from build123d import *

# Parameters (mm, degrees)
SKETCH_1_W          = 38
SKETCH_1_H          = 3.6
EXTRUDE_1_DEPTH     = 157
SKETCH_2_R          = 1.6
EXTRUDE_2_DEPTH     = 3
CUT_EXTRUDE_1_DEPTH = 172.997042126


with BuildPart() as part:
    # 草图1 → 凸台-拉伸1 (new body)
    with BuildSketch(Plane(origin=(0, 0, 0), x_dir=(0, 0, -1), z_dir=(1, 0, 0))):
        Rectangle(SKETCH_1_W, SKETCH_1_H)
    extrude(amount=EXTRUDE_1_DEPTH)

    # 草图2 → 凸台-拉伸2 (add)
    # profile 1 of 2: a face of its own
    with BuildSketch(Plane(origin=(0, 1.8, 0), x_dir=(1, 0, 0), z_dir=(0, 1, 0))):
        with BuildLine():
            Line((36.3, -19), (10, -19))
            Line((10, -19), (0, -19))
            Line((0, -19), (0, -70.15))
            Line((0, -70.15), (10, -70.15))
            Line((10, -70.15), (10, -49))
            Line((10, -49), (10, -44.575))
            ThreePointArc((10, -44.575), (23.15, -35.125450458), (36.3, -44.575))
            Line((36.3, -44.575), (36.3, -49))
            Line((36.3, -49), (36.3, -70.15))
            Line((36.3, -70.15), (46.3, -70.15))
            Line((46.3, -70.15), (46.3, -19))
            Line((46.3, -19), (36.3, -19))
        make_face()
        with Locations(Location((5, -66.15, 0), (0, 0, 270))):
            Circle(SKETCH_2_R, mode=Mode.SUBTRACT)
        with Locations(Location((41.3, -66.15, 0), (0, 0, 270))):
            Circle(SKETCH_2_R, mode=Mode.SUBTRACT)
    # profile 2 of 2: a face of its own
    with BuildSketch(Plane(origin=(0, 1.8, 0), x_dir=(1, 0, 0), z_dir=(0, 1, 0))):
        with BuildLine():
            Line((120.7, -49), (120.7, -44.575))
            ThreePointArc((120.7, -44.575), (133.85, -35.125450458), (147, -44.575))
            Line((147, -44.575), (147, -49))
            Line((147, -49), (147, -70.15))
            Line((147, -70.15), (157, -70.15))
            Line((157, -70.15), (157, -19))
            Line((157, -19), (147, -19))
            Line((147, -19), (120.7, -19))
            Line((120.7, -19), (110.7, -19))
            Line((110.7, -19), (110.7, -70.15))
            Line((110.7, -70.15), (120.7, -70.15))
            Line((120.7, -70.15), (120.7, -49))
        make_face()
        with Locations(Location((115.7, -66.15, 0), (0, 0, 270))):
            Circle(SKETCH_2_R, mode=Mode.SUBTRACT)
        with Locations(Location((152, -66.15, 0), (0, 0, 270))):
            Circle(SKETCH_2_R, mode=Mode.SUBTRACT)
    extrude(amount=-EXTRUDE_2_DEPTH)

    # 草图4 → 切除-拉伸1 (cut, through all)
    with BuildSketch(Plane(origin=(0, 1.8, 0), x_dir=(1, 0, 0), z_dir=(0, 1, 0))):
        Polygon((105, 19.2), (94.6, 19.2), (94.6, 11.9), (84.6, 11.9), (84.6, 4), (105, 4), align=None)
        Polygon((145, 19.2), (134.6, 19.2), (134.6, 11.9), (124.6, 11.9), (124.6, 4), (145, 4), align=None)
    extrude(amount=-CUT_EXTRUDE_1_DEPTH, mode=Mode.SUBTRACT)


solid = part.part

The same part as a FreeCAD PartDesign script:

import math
import FreeCAD as App
import Part
import Sketcher

V = App.Vector


def add_polygon(sketch, points):
    """Adds a closed chain of lines whose ends are joined by coincident constraints."""
    first, n = sketch.GeometryCount, len(points)
    for a, b in zip(points, points[1:] + points[:1]):
        sketch.addGeometry(Part.LineSegment(App.Vector(*a, 0), App.Vector(*b, 0)), False)
    for i in range(n):
        sketch.addConstraint(Sketcher.Constraint("Coincident", first + i, 2, first + (i + 1) % n, 1))

doc = App.newDocument("Part")
params = doc.addObject("Spreadsheet::Sheet", "Params")
for row, (alias, value) in enumerate([
    ("sketch1_height", "38 mm"),
    ("sketch1_width", "3.6 mm"),
    ("pad1_length", "157 mm"),
    ("sketch2_diameter", "3.2 mm"),
    ("sketch2_width", "10 mm"),
    ("sketch2_width2", "46.3 mm"),
    ("sketch2_height", "51.15 mm"),
    ("pad2_length", "3 mm"),
    ("sketch3_width", "10 mm"),
    ("sketch3_width2", "10.4 mm"),
    ("sketch3_height", "7.3 mm"),
    ("sketch3_height2", "7.9 mm"),
], start=1):
    params.set(f"A{row}", alias)
    params.set(f"B{row}", "=" + value)
    params.setAlias(f"B{row}", alias)

body = doc.addObject("PartDesign::Body", "Body")

sketch1 = body.newObject("Sketcher::SketchObject", "Sketch")
sketch1.AttachmentSupport = (doc.getObject("YZ_Plane"), [""])
sketch1.MapMode = "FlatFace"
add_polygon(sketch1, [(1.8, 19), (-1.8, 19), (-1.8, -19), (1.8, -19)])
sketch1.addConstraint([
    Sketcher.Constraint("Horizontal", 0),
    Sketcher.Constraint("Vertical", 1),
    Sketcher.Constraint("Horizontal", 2),
    Sketcher.Constraint("Vertical", 3),
    Sketcher.Constraint("Symmetric", 0, 2, 2, 2, -1, 1),
    Sketcher.Constraint("DistanceY", 1, 2, 1, 1, 38.0),
    Sketcher.Constraint("DistanceX", 0, 2, 0, 1, 3.6),
])
sketch1.setExpression("Constraints[9]", "Params.sketch1_height")
sketch1.setExpression("Constraints[10]", "Params.sketch1_width")
pad1 = body.newObject("PartDesign::Pad", "Pad")
pad1.Profile = sketch1
pad1.setExpression("Length", "Params.pad1_length")

sketch2 = body.newObject("Sketcher::SketchObject", "Sketch001")
sketch2.AttachmentSupport = (doc.getObject("XZ_Plane"), [""])
sketch2.MapMode = "FlatFace"
sketch2.AttachmentOffset = App.Placement(V(0, 0, -1.8), App.Rotation())
sketch2.addGeometry([
    Part.LineSegment(V(0, 19, 0), V(0, 70.2, 0)),
    Part.LineSegment(V(0, 70.2, 0), V(10, 70.2, 0)),
    Part.LineSegment(V(10, 70.2, 0), V(10, 44.6, 0)),
    Part.ArcOfCircle(Part.Circle(V(23.1, 49, 0), V(0, 0, 1), 13.9), math.radians(-161), math.radians(-19)),
    Part.LineSegment(V(36.3, 44.6, 0), V(36.3, 70.2, 0)),
    Part.LineSegment(V(36.3, 70.2, 0), V(46.3, 70.2, 0)),
    Part.LineSegment(V(46.3, 70.2, 0), V(46.3, 19, 0)),
    Part.LineSegment(V(46.3, 19, 0), V(0, 19, 0)),
    Part.Circle(V(5, 66.2, 0), V(0, 0, 1), 1.6),
    Part.Circle(V(41.3, 66.2, 0), V(0, 0, 1), 1.6),
    Part.ArcOfCircle(Part.Circle(V(133.8, 49, 0), V(0, 0, 1), 13.9), math.radians(-161), math.radians(-19)),
    Part.LineSegment(V(147, 44.6, 0), V(147, 70.2, 0)),
    Part.LineSegment(V(147, 70.2, 0), V(157, 70.2, 0)),
    Part.LineSegment(V(157, 70.2, 0), V(157, 19, 0)),
    Part.LineSegment(V(157, 19, 0), V(110.7, 19, 0)),
    Part.LineSegment(V(110.7, 19, 0), V(110.7, 70.2, 0)),
    Part.LineSegment(V(110.7, 70.2, 0), V(120.7, 70.2, 0)),
    Part.LineSegment(V(120.7, 70.2, 0), V(120.7, 44.6, 0)),
    Part.Circle(V(115.7, 66.2, 0), V(0, 0, 1), 1.6),
    Part.Circle(V(152, 66.2, 0), V(0, 0, 1), 1.6),
], False)
sketch2.addConstraint([
    Sketcher.Constraint("Coincident", 0, 2, 1, 1),
    Sketcher.Constraint("Coincident", 1, 2, 2, 1),
    Sketcher.Constraint("Coincident", 2, 2, 3, 1),
    Sketcher.Constraint("Coincident", 3, 2, 4, 1),
    Sketcher.Constraint("Coincident", 4, 2, 5, 1),
    Sketcher.Constraint("Coincident", 5, 2, 6, 1),
    Sketcher.Constraint("Coincident", 6, 2, 7, 1),
    Sketcher.Constraint("Coincident", 7, 2, 0, 1),
    Sketcher.Constraint("Coincident", 10, 2, 11, 1),
    Sketcher.Constraint("Coincident", 11, 2, 12, 1),
    Sketcher.Constraint("Coincident", 12, 2, 13, 1),
    Sketcher.Constraint("Coincident", 13, 2, 14, 1),
    Sketcher.Constraint("Coincident", 14, 2, 15, 1),
    Sketcher.Constraint("Coincident", 15, 2, 16, 1),
    Sketcher.Constraint("Coincident", 16, 2, 17, 1),
    Sketcher.Constraint("Coincident", 17, 2, 10, 1),
    Sketcher.Constraint("Vertical", 0),
    Sketcher.Constraint("Horizontal", 1),
    Sketcher.Constraint("Vertical", 2),
    Sketcher.Constraint("Vertical", 4),
    Sketcher.Constraint("Horizontal", 5),
    Sketcher.Constraint("Vertical", 6),
    Sketcher.Constraint("Horizontal", 7),
    Sketcher.Constraint("Vertical", 11),
    Sketcher.Constraint("Horizontal", 12),
    Sketcher.Constraint("Vertical", 13),
    Sketcher.Constraint("Horizontal", 14),
    Sketcher.Constraint("Vertical", 15),
    Sketcher.Constraint("Horizontal", 16),
    Sketcher.Constraint("Vertical", 17),
    Sketcher.Constraint("Equal", 8, 9),
    Sketcher.Constraint("Equal", 3, 10),
    Sketcher.Constraint("Equal", 9, 18),
    Sketcher.Constraint("Equal", 18, 19),
    Sketcher.Constraint("PointOnObject", 0, 2, -2),
    Sketcher.Constraint("Horizontal", 8, 3, 9, 3),
    Sketcher.Constraint("Horizontal", 3, 3, 10, 3),
    Sketcher.Constraint("Horizontal", 9, 3, 18, 3),
    Sketcher.Constraint("Horizontal", 18, 3, 19, 3),
    Sketcher.Constraint("Horizontal", 2, 2, 3, 2),
    Sketcher.Constraint("Horizontal", 1, 2, 4, 2),
    Sketcher.Constraint("Horizontal", 3, 2, 10, 2),
    Sketcher.Constraint("Horizontal", 5, 2, 11, 2),
    Sketcher.Constraint("Horizontal", 7, 2, 13, 2),
    Sketcher.Constraint("Horizontal", 12, 2, 15, 2),
    Sketcher.Constraint("Horizontal", 10, 2, 17, 2),
    Sketcher.Constraint("Equal", 1, 5),
    Sketcher.Constraint("Equal", 5, 12),
    Sketcher.Constraint("Equal", 7, 14),
    Sketcher.Constraint("Diameter", 8, 3.2),
    Sketcher.Constraint("DistanceX", 1, 1, 1, 2, 10.0),
    Sketcher.Constraint("DistanceX", 7, 2, 7, 1, 46.3),
    Sketcher.Constraint("DistanceY", -1, 1, 3, 3, 49.0),
    Sketcher.Constraint("DistanceX", -1, 1, 8, 3, 5.0),
    Sketcher.Constraint("DistanceX", -1, 1, 19, 3, 152.0),
    Sketcher.Constraint("DistanceY", -1, 1, 6, 2, 19.0),
    Sketcher.Constraint("DistanceX", -1, 1, 10, 2, 147.0),
    Sketcher.Constraint("DistanceY", 8, 3, 0, 2, 4.0),
    Sketcher.Constraint("DistanceX", 3, 2, 9, 3, 5.0),
    Sketcher.Constraint("DistanceX", 14, 2, 18, 3, 5.0),
    Sketcher.Constraint("DistanceY", 0, 1, 0, 2, 51.15),
    Sketcher.Constraint("DistanceY", 2, 2, 2, 1, 25.575),
])
sketch2.setExpression("Constraints[49]", "Params.sketch2_diameter")
sketch2.setExpression("Constraints[50]", "Params.sketch2_width")
sketch2.setExpression("Constraints[51]", "Params.sketch2_width2")
sketch2.setExpression("Constraints[60]", "Params.sketch2_height")
pad2 = body.newObject("PartDesign::Pad", "Pad001")
pad2.Profile = sketch2
pad2.setExpression("Length", "Params.pad2_length")

sketch3 = body.newObject("Sketcher::SketchObject", "Sketch002")
sketch3.AttachmentSupport = (doc.getObject("XZ_Plane"), [""])
sketch3.MapMode = "FlatFace"
sketch3.AttachmentOffset = App.Placement(V(0, 0, -1.8), App.Rotation())
add_polygon(sketch3, [(105, -19), (95, -19), (95, -12), (85, -12), (85, -4), (105, -4)])
add_polygon(sketch3, [(145, -19), (135, -19), (135, -12), (125, -12), (125, -4), (145, -4)])
sketch3.addConstraint([
    Sketcher.Constraint("Horizontal", 0),
    Sketcher.Constraint("Vertical", 1),
    Sketcher.Constraint("Horizontal", 2),
    Sketcher.Constraint("Vertical", 3),
    Sketcher.Constraint("Horizontal", 4),
    Sketcher.Constraint("Vertical", 5),
    Sketcher.Constraint("Horizontal", 6),
    Sketcher.Constraint("Vertical", 7),
    Sketcher.Constraint("Horizontal", 8),
    Sketcher.Constraint("Vertical", 9),
    Sketcher.Constraint("Horizontal", 10),
    Sketcher.Constraint("Vertical", 11),
    Sketcher.Constraint("Horizontal", 5, 2, 6, 2),
    Sketcher.Constraint("Horizontal", 2, 2, 7, 2),
    Sketcher.Constraint("Horizontal", 4, 2, 9, 2),
    Sketcher.Constraint("Equal", 0, 6),
    Sketcher.Constraint("Equal", 2, 8),
    Sketcher.Constraint("DistanceX", 2, 2, 2, 1, 10.0),
    Sketcher.Constraint("DistanceX", 0, 2, 0, 1, 10.4),
    Sketcher.Constraint("DistanceY", 1, 1, 1, 2, 7.3),
    Sketcher.Constraint("DistanceY", 3, 1, 3, 2, 7.9),
    Sketcher.Constraint("DistanceY", 3, 2, -1, 1, 4.0),
    Sketcher.Constraint("DistanceX", -1, 1, 4, 2, 105.0),
    Sketcher.Constraint("DistanceX", -1, 1, 10, 2, 145.0),
])
sketch3.setExpression("Constraints[29]", "Params.sketch3_width")
sketch3.setExpression("Constraints[30]", "Params.sketch3_width2")
sketch3.setExpression("Constraints[31]", "Params.sketch3_height")
sketch3.setExpression("Constraints[32]", "Params.sketch3_height2")
pocket1 = body.newObject("PartDesign::Pocket", "Pocket")
pocket1.Profile = sketch3
pocket1.Type = "ThroughAll"
pocket1.Reversed = True

doc.recompute()
